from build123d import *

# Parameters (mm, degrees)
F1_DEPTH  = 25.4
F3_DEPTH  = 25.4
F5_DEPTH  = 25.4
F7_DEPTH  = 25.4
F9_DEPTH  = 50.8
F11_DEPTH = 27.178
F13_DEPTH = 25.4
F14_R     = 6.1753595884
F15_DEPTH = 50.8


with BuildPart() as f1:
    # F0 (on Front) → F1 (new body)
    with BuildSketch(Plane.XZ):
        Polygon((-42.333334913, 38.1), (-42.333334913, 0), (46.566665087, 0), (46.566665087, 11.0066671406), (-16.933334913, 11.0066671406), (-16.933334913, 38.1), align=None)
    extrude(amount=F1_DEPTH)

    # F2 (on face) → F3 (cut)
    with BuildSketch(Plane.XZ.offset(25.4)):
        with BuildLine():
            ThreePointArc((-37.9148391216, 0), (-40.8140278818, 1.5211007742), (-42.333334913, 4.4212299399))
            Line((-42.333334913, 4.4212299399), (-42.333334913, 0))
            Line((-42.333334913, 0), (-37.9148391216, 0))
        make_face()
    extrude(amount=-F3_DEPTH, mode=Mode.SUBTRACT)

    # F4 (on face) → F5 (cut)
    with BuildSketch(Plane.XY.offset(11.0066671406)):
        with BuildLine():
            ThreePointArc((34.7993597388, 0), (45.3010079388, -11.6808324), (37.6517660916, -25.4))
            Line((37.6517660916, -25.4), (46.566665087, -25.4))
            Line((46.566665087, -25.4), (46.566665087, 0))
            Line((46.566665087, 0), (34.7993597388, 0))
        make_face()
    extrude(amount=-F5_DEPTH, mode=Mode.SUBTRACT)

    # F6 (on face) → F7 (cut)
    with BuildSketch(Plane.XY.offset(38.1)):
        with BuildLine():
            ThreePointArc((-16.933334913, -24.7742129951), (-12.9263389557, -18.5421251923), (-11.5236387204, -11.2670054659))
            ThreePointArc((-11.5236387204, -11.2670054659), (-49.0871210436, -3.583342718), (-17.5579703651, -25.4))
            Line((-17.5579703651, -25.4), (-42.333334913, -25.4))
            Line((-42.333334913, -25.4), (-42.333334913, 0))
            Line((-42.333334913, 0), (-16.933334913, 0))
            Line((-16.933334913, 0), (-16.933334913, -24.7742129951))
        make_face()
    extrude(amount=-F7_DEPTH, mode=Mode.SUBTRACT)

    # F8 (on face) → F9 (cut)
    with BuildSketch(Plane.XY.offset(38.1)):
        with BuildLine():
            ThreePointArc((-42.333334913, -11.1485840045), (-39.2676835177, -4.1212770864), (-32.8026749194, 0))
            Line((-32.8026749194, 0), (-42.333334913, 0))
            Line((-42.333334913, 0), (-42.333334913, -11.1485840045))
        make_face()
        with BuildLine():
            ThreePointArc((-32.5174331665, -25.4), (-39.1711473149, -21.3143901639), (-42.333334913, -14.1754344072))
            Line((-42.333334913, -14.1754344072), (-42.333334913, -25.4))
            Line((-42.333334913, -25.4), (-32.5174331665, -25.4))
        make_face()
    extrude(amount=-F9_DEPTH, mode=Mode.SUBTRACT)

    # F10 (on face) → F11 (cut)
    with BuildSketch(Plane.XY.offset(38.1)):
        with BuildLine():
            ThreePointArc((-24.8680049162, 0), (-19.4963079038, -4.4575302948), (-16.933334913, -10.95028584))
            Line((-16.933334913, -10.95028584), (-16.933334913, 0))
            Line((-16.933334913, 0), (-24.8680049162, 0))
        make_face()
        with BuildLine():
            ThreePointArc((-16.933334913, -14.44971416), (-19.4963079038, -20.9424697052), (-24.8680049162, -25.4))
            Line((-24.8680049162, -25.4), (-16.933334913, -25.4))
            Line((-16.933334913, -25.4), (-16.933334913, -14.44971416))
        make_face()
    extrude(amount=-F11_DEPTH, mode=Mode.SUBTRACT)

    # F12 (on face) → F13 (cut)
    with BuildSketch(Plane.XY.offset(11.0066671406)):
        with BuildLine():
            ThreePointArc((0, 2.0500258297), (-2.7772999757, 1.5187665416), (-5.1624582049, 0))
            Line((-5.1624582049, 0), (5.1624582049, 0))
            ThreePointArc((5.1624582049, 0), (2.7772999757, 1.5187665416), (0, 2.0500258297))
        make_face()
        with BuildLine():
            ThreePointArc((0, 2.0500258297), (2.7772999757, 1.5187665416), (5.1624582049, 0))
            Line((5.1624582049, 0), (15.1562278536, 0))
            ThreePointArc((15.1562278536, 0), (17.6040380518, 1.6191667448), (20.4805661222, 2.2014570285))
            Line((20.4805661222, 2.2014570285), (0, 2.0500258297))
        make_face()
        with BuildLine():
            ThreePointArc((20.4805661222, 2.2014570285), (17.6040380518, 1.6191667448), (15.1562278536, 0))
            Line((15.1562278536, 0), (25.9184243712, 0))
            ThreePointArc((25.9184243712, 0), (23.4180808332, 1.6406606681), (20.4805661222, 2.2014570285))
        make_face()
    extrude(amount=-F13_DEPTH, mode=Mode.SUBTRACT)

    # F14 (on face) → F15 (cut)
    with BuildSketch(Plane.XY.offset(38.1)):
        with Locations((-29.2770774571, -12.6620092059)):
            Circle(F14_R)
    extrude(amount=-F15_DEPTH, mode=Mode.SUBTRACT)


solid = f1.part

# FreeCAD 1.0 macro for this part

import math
import FreeCAD as App
import Part
import Sketcher

V = App.Vector
Q = App.Units.Quantity


def add_polygon(sketch, points):
    """Adds a closed chain of lines whose ends are joined by coincident constraints."""
    first, n = sketch.GeometryCount, len(points)
    for a, b in zip(points, points[1:] + points[:1]):
        sketch.addGeometry(Part.LineSegment(App.Vector(*a, 0), App.Vector(*b, 0)), False)
    for i in range(n):
        sketch.addConstraint(Sketcher.Constraint("Coincident", first + i, 2, first + (i + 1) % n, 1))

doc = App.newDocument("Part")
params = doc.addObject("Spreadsheet::Sheet", "Params")
for row, (alias, value) in enumerate([
    ("sketch1_width", "1 in"),
    ("sketch1_width2", "3.5 in"),
    ("sketch1_height", "1.5 in"),
    ("pad1_length", "1 in"),
    ("pocket1_length", "1 in"),
    ("sketch3_height", "1 in"),
    ("pocket2_length", "1 in"),
    ("sketch4_width", "1 in"),
    ("pocket3_length", "1 in"),
    ("pocket4_length", "2 in"),
    ("pocket5_length", "1.07 in"),
    ("pocket6_length", "1 in"),
    ("pocket7_length", "2 in"),
], start=1):
    params.set(f"A{row}", alias)
    params.set(f"B{row}", "=" + value)
    params.setAlias(f"B{row}", alias)

body = doc.addObject("PartDesign::Body", "Body")

sketch1 = body.newObject("Sketcher::SketchObject", "Sketch")
sketch1.AttachmentSupport = (doc.getObject("XZ_Plane"), [""])
sketch1.MapMode = "FlatFace"
add_polygon(sketch1, [(-42, 38), (-42, 0), (47, 0), (47, 11), (-17, 11), (-17, 38)])
sketch1.addConstraint(Sketcher.Constraint("Vertical", 0))
sketch1.addConstraint(Sketcher.Constraint("Horizontal", 1))
sketch1.addConstraint(Sketcher.Constraint("Vertical", 2))
sketch1.addConstraint(Sketcher.Constraint("Horizontal", 3))
sketch1.addConstraint(Sketcher.Constraint("Vertical", 4))
sketch1.addConstraint(Sketcher.Constraint("Horizontal", 5))
sketch1.addConstraint(Sketcher.Constraint("PointOnObject", 0, 2, -1))
sketch1.addConstraint(Sketcher.Constraint("DistanceX", 5, 2, 5, 1, Q("1 in")))
sketch1.addConstraint(Sketcher.Constraint("DistanceX", 1, 1, 1, 2, Q("3.5 in")))
sketch1.addConstraint(Sketcher.Constraint("DistanceY", 0, 2, 0, 1, Q("1.5 in")))
sketch1.addConstraint(Sketcher.Constraint("DistanceY", 2, 1, 2, 2, Q("11.006667 mm")))
sketch1.addConstraint(Sketcher.Constraint("DistanceX", 0, 2, -1, 1, Q("42.333335 mm")))
sketch1.setExpression("Constraints[13]", "Params.sketch1_width")
sketch1.setExpression("Constraints[14]", "Params.sketch1_width2")
sketch1.setExpression("Constraints[15]", "Params.sketch1_height")
pad1 = body.newObject("PartDesign::Pad", "Pad")
pad1.Profile = sketch1
pad1.setExpression("Length", "Params.pad1_length")

sketch2 = body.newObject("Sketcher::SketchObject", "Sketch001")
sketch2.AttachmentSupport = (doc.getObject("XZ_Plane"), [""])
sketch2.MapMode = "FlatFace"
sketch2.AttachmentOffset = App.Placement(V(0, 0, 1 * 25.4), App.Rotation())
sketch2.addGeometry(Part.ArcOfCircle(Part.Circle(V(-36.9, 5.4, 0), V(0, 0, 1), 5.5), math.radians(-170), math.radians(-100)), False)
sketch2.addGeometry(Part.LineSegment(V(-42.3, 4.4, 0), V(-42.3, 0, 0)), False)
sketch2.addGeometry(Part.LineSegment(V(-42.3, 0, 0), V(-37.9, 0, 0)), False)
sketch2.addConstraint(Sketcher.Constraint("Coincident", 0, 1, 1, 1))
sketch2.addConstraint(Sketcher.Constraint("Coincident", 1, 2, 2, 1))
sketch2.addConstraint(Sketcher.Constraint("Coincident", 2, 2, 0, 2))
sketch2.addConstraint(Sketcher.Constraint("Vertical", 1))
sketch2.addConstraint(Sketcher.Constraint("Horizontal", 2))
sketch2.addConstraint(Sketcher.Constraint("PointOnObject", 1, 2, -1))
sketch2.addConstraint(Sketcher.Constraint("Radius", 0, Q("5.494567 mm")))
sketch2.addConstraint(Sketcher.Constraint("DistanceY", 1, 2, 1, 1, Q("4.42123 mm")))
sketch2.addConstraint(Sketcher.Constraint("DistanceX", 2, 1, 2, 2, Q("4.418496 mm")))
sketch2.addConstraint(Sketcher.Constraint("DistanceX", 0, 3, -1, 1, Q("36.927581 mm")))
pocket1 = body.newObject("PartDesign::Pocket", "Pocket")
pocket1.Profile = sketch2
pocket1.setExpression("Length", "Params.pocket1_length")

sketch3 = body.newObject("Sketcher::SketchObject", "Sketch002")
sketch3.AttachmentSupport = (doc.getObject("XY_Plane"), [""])
sketch3.MapMode = "FlatFace"
sketch3.AttachmentOffset = App.Placement(V(0, 0, 11.006667), App.Rotation())
sketch3.addGeometry(Part.ArcOfCircle(Part.Circle(V(32, -13, 0), V(0, 0, 1), 14), math.radians(-65), math.radians(78)), False)
sketch3.addGeometry(Part.LineSegment(V(38, -25, 0), V(47, -25, 0)), False)
sketch3.addGeometry(Part.LineSegment(V(47, -25, 0), V(47, 0, 0)), False)
sketch3.addGeometry(Part.LineSegment(V(47, 0, 0), V(35, 0, 0)), False)
sketch3.addConstraint(Sketcher.Constraint("Coincident", 0, 1, 1, 1))
sketch3.addConstraint(Sketcher.Constraint("Coincident", 1, 2, 2, 1))
sketch3.addConstraint(Sketcher.Constraint("Coincident", 2, 2, 3, 1))
sketch3.addConstraint(Sketcher.Constraint("Coincident", 3, 2, 0, 2))
sketch3.addConstraint(Sketcher.Constraint("Horizontal", 1))
sketch3.addConstraint(Sketcher.Constraint("Vertical", 2))
sketch3.addConstraint(Sketcher.Constraint("Horizontal", 3))
sketch3.addConstraint(Sketcher.Constraint("PointOnObject", 2, 2, -1))
sketch3.addConstraint(Sketcher.Constraint("DistanceY", 2, 1, 2, 2, Q("1 in")))
sketch3.addConstraint(Sketcher.Constraint("DistanceX", 1, 1, 1, 2, Q("8.914899 mm")))
sketch3.addConstraint(Sketcher.Constraint("Radius", 0, Q("13.508168 mm")))
sketch3.addConstraint(Sketcher.Constraint("DistanceX", 3, 2, 3, 1, Q("11.767305 mm")))
sketch3.addConstraint(Sketcher.Constraint("DistanceX", -1, 1, 0, 3, Q("31.87722 mm")))
sketch3.setExpression("Constraints[8]", "Params.sketch3_height")
pocket2 = body.newObject("PartDesign::Pocket", "Pocket001")
pocket2.Profile = sketch3
pocket2.setExpression("Length", "Params.pocket2_length")

sketch4 = body.newObject("Sketcher::SketchObject", "Sketch003")
sketch4.AttachmentSupport = (doc.getObject("XY_Plane"), [""])
sketch4.MapMode = "FlatFace"
sketch4.AttachmentOffset = App.Placement(V(0, 0, 1.5 * 25.4), App.Rotation())
sketch4.addGeometry(Part.ArcOfCircle(Part.Circle(V(-31, -11, 0), V(0, 0, 1), 20), math.radians(-44), math.radians(0)), False)
sketch4.addGeometry(Part.ArcOfCircle(Part.Circle(V(-31, -11, 0), V(0, 0, 1), 20), math.radians(0), math.radians(314)), False)
sketch4.addGeometry(Part.LineSegment(V(-18, -25, 0), V(-42, -25, 0)), False)
sketch4.addGeometry(Part.LineSegment(V(-42, -25, 0), V(-42, 0, 0)), False)
sketch4.addGeometry(Part.LineSegment(V(-42, 0, 0), V(-17, 0, 0)), False)
sketch4.addGeometry(Part.LineSegment(V(-17, 0, 0), V(-17, -25, 0)), False)
sketch4.addConstraint(Sketcher.Constraint("Tangent", 0, 2, 1, 1))
sketch4.addConstraint(Sketcher.Constraint("Coincident", 1, 2, 2, 1))
sketch4.addConstraint(Sketcher.Constraint("Coincident", 2, 2, 3, 1))
sketch4.addConstraint(Sketcher.Constraint("Coincident", 3, 2, 4, 1))
sketch4.addConstraint(Sketcher.Constraint("Coincident", 4, 2, 5, 1))
sketch4.addConstraint(Sketcher.Constraint("Coincident", 5, 2, 0, 1))
sketch4.addConstraint(Sketcher.Constraint("Horizontal", 2))
sketch4.addConstraint(Sketcher.Constraint("Vertical", 3))
sketch4.addConstraint(Sketcher.Constraint("Horizontal", 4))
sketch4.addConstraint(Sketcher.Constraint("Vertical", 5))
sketch4.addConstraint(Sketcher.Constraint("Equal", 0, 1))
sketch4.addConstraint(Sketcher.Constraint("PointOnObject", 3, 2, -1))
sketch4.addConstraint(Sketcher.Constraint("Horizontal", 1, 3, 0, 2))
sketch4.addConstraint(Sketcher.Constraint("Equal", 4, 3))
sketch4.addConstraint(Sketcher.Constraint("DistanceX", 4, 1, 4, 2, Q("1 in")))
sketch4.addConstraint(Sketcher.Constraint("Radius", 0, Q("19.567593 mm")))
sketch4.addConstraint(Sketcher.Constraint("DistanceX", 2, 2, 2, 1, Q("24.775365 mm")))
sketch4.addConstraint(Sketcher.Constraint("DistanceY", 5, 2, 5, 1, Q("24.774213 mm")))
sketch4.addConstraint(Sketcher.Constraint("DistanceX", 0, 3, -1, 1, Q("31.091232 mm")))
sketch4.setExpression("Constraints[14]", "Params.sketch4_width")
pocket3 = body.newObject("PartDesign::Pocket", "Pocket002")
pocket3.Profile = sketch4
pocket3.setExpression("Length", "Params.pocket3_length")

sketch5 = body.newObject("Sketcher::SketchObject", "Sketch004")
sketch5.AttachmentSupport = (doc.getObject("XY_Plane"), [""])
sketch5.MapMode = "FlatFace"
sketch5.AttachmentOffset = App.Placement(V(0, 0, 1.5 * 25.4), App.Rotation())
sketch5.addGeometry(Part.ArcOfCircle(Part.Circle(V(-29, -13, 0), V(0, 0, 1), 13), math.radians(106), math.radians(173)), False)
sketch5.addGeometry(Part.LineSegment(V(-33, 0, 0), V(-42, 0, 0)), False)
sketch5.addGeometry(Part.LineSegment(V(-42, 0, 0), V(-42, -11, 0)), False)
sketch5.addGeometry(Part.ArcOfCircle(Part.Circle(V(-29, -13, 0), V(0, 0, 1), 13), math.radians(-173), math.radians(-104)), False)
sketch5.addGeometry(Part.LineSegment(V(-42, -14, 0), V(-42, -25, 0)), False)
sketch5.addGeometry(Part.LineSegment(V(-42, -25, 0), V(-33, -25, 0)), False)
sketch5.addConstraint(Sketcher.Constraint("Coincident", 0, 1, 1, 1))
sketch5.addConstraint(Sketcher.Constraint("Coincident", 1, 2, 2, 1))
sketch5.addConstraint(Sketcher.Constraint("Coincident", 2, 2, 0, 2))
sketch5.addConstraint(Sketcher.Constraint("Coincident", 3, 1, 4, 1))
sketch5.addConstraint(Sketcher.Constraint("Coincident", 4, 2, 5, 1))
sketch5.addConstraint(Sketcher.Constraint("Coincident", 5, 2, 3, 2))
sketch5.addConstraint(Sketcher.Constraint("Horizontal", 1))
sketch5.addConstraint(Sketcher.Constraint("Vertical", 2))
sketch5.addConstraint(Sketcher.Constraint("Vertical", 4))
sketch5.addConstraint(Sketcher.Constraint("Horizontal", 5))
sketch5.addConstraint(Sketcher.Constraint("Coincident", 3, 3, 0, 3))
sketch5.addConstraint(Sketcher.Constraint("Equal", 0, 3))
sketch5.addConstraint(Sketcher.Constraint("PointOnObject", 0, 1, -1))
sketch5.addConstraint(Sketcher.Constraint("Vertical", 2, 2, 3, 1))
sketch5.addConstraint(Sketcher.Constraint("DistanceY", 4, 2, -1, 1, Q("1 in")))
sketch5.addConstraint(Sketcher.Constraint("Radius", 0, Q("13.14368 mm")))
sketch5.addConstraint(Sketcher.Constraint("DistanceX", 5, 1, 5, 2, Q("9.815902 mm")))
sketch5.addConstraint(Sketcher.Constraint("DistanceX", 1, 2, 1, 1, Q("9.53066 mm")))
sketch5.addConstraint(Sketcher.Constraint("DistanceX", 0, 3, -1, 1, Q("29.277077 mm")))
pocket4 = body.newObject("PartDesign::Pocket", "Pocket003")
pocket4.Profile = sketch5
pocket4.setExpression("Length", "Params.pocket4_length")

sketch6 = body.newObject("Sketcher::SketchObject", "Sketch005")
sketch6.AttachmentSupport = (doc.getObject("XY_Plane"), [""])
sketch6.MapMode = "FlatFace"
sketch6.AttachmentOffset = App.Placement(V(0, 0, 1.5 * 25.4), App.Rotation())
sketch6.addGeometry(Part.ArcOfCircle(Part.Circle(V(-31, -13, 0), V(0, 0, 1), 14), math.radians(7), math.radians(65)), False)
sketch6.addGeometry(Part.LineSegment(V(-17, -11, 0), V(-17, 0, 0)), False)
sketch6.addGeometry(Part.LineSegment(V(-17, 0, 0), V(-25, 0, 0)), False)
sketch6.addGeometry(Part.ArcOfCircle(Part.Circle(V(-31, -13, 0), V(0, 0, 1), 14), math.radians(-65), math.radians(-7)), False)
sketch6.addGeometry(Part.LineSegment(V(-25, -25, 0), V(-17, -25, 0)), False)
sketch6.addGeometry(Part.LineSegment(V(-17, -25, 0), V(-17, -14, 0)), False)
sketch6.addConstraint(Sketcher.Constraint("Coincident", 0, 1, 1, 1))
sketch6.addConstraint(Sketcher.Constraint("Coincident", 1, 2, 2, 1))
sketch6.addConstraint(Sketcher.Constraint("Coincident", 2, 2, 0, 2))
sketch6.addConstraint(Sketcher.Constraint("Coincident", 3, 1, 4, 1))
sketch6.addConstraint(Sketcher.Constraint("Coincident", 4, 2, 5, 1))
sketch6.addConstraint(Sketcher.Constraint("Coincident", 5, 2, 3, 2))
sketch6.addConstraint(Sketcher.Constraint("Vertical", 1))
sketch6.addConstraint(Sketcher.Constraint("Horizontal", 2))
sketch6.addConstraint(Sketcher.Constraint("Horizontal", 4))
sketch6.addConstraint(Sketcher.Constraint("Vertical", 5))
sketch6.addConstraint(Sketcher.Constraint("Coincident", 3, 3, 0, 3))
sketch6.addConstraint(Sketcher.Constraint("Equal", 0, 3))
sketch6.addConstraint(Sketcher.Constraint("PointOnObject", 1, 2, -1))
sketch6.addConstraint(Sketcher.Constraint("Vertical", 2, 2, 3, 1))
sketch6.addConstraint(Sketcher.Constraint("Vertical", 1, 2, 4, 2))
sketch6.addConstraint(Sketcher.Constraint("DistanceY", 3, 1, -1, 1, Q("1 in")))
sketch6.addConstraint(Sketcher.Constraint("Radius", 0, Q("14.047436 mm")))
sketch6.addConstraint(Sketcher.Constraint("DistanceX", 2, 2, 2, 1, Q("7.93467 mm")))
sketch6.addConstraint(Sketcher.Constraint("DistanceX", 0, 3, -1, 1, Q("30.871374 mm")))
pocket5 = body.newObject("PartDesign::Pocket", "Pocket004")
pocket5.Profile = sketch6
pocket5.setExpression("Length", "Params.pocket5_length")

sketch7 = body.newObject("Sketcher::SketchObject", "Sketch006")
sketch7.AttachmentSupport = (doc.getObject("XY_Plane"), [""])
sketch7.MapMode = "FlatFace"
sketch7.AttachmentOffset = App.Placement(V(0, 0, 11.006667), App.Rotation())
sketch7.addGeometry(Part.ArcOfCircle(Part.Circle(V(0, -5, 0), V(0, 0, 1), 8), math.radians(90), math.radians(133)), False)
sketch7.addGeometry(Part.LineSegment(V(-5, 0, 0), V(26, 0, 0)), False)
sketch7.addGeometry(Part.ArcOfCircle(Part.Circle(V(21, -5, 0), V(0, 0, 1), 8), math.radians(45), math.radians(90)), False)
sketch7.addGeometry(Part.LineSegment(V(20, 2, 0), V(0, 2, 0)), False)
sketch7.addConstraint(Sketcher.Constraint("Coincident", 0, 2, 1, 1))
sketch7.addConstraint(Sketcher.Constraint("Coincident", 1, 2, 2, 1))
sketch7.addConstraint(Sketcher.Constraint("Tangent", 2, 2, 3, 1))
sketch7.addConstraint(Sketcher.Constraint("Coincident", 3, 2, 0, 1))
sketch7.addConstraint(Sketcher.Constraint("Horizontal", 1))
sketch7.addConstraint(Sketcher.Constraint("PointOnObject", 0, 3, -2))
sketch7.addConstraint(Sketcher.Constraint("PointOnObject", 0, 2, -1))
sketch7.addConstraint(Sketcher.Constraint("PointOnObject", 3, 2, -2))
sketch7.addConstraint(Sketcher.Constraint("Horizontal", 0, 3, 2, 3))
sketch7.addConstraint(Sketcher.Constraint("Radius", 0, Q("7.525169 mm")))
sketch7.addConstraint(Sketcher.Constraint("Radius", 2, Q("7.67681 mm")))
sketch7.addConstraint(Sketcher.Constraint("DistanceX", 2, 3, 1, 2, Q("5.381098 mm")))
sketch7.addConstraint(Sketcher.Constraint("DistanceX", 1, 1, 1, 2, Q("31.080883 mm")))
pocket6 = body.newObject("PartDesign::Pocket", "Pocket005")
pocket6.Profile = sketch7
pocket6.setExpression("Length", "Params.pocket6_length")

sketch8 = body.newObject("Sketcher::SketchObject", "Sketch007")
sketch8.AttachmentSupport = (doc.getObject("XY_Plane"), [""])
sketch8.MapMode = "FlatFace"
sketch8.AttachmentOffset = App.Placement(V(0, 0, 1.5 * 25.4), App.Rotation())
sketch8.addGeometry(Part.Circle(V(-29, -13, 0), V(0, 0, 1), 6), False)
sketch8.addConstraint(Sketcher.Constraint("Diameter", 0, Q("12.350719 mm")))
sketch8.addConstraint(Sketcher.Constraint("DistanceY", 0, 3, -1, 1, Q("12.662009 mm")))
sketch8.addConstraint(Sketcher.Constraint("DistanceX", 0, 3, -1, 1, Q("29.277077 mm")))
pocket7 = body.newObject("PartDesign::Pocket", "Pocket006")
pocket7.Profile = sketch8
pocket7.setExpression("Length", "Params.pocket7_length")

doc.recompute()
